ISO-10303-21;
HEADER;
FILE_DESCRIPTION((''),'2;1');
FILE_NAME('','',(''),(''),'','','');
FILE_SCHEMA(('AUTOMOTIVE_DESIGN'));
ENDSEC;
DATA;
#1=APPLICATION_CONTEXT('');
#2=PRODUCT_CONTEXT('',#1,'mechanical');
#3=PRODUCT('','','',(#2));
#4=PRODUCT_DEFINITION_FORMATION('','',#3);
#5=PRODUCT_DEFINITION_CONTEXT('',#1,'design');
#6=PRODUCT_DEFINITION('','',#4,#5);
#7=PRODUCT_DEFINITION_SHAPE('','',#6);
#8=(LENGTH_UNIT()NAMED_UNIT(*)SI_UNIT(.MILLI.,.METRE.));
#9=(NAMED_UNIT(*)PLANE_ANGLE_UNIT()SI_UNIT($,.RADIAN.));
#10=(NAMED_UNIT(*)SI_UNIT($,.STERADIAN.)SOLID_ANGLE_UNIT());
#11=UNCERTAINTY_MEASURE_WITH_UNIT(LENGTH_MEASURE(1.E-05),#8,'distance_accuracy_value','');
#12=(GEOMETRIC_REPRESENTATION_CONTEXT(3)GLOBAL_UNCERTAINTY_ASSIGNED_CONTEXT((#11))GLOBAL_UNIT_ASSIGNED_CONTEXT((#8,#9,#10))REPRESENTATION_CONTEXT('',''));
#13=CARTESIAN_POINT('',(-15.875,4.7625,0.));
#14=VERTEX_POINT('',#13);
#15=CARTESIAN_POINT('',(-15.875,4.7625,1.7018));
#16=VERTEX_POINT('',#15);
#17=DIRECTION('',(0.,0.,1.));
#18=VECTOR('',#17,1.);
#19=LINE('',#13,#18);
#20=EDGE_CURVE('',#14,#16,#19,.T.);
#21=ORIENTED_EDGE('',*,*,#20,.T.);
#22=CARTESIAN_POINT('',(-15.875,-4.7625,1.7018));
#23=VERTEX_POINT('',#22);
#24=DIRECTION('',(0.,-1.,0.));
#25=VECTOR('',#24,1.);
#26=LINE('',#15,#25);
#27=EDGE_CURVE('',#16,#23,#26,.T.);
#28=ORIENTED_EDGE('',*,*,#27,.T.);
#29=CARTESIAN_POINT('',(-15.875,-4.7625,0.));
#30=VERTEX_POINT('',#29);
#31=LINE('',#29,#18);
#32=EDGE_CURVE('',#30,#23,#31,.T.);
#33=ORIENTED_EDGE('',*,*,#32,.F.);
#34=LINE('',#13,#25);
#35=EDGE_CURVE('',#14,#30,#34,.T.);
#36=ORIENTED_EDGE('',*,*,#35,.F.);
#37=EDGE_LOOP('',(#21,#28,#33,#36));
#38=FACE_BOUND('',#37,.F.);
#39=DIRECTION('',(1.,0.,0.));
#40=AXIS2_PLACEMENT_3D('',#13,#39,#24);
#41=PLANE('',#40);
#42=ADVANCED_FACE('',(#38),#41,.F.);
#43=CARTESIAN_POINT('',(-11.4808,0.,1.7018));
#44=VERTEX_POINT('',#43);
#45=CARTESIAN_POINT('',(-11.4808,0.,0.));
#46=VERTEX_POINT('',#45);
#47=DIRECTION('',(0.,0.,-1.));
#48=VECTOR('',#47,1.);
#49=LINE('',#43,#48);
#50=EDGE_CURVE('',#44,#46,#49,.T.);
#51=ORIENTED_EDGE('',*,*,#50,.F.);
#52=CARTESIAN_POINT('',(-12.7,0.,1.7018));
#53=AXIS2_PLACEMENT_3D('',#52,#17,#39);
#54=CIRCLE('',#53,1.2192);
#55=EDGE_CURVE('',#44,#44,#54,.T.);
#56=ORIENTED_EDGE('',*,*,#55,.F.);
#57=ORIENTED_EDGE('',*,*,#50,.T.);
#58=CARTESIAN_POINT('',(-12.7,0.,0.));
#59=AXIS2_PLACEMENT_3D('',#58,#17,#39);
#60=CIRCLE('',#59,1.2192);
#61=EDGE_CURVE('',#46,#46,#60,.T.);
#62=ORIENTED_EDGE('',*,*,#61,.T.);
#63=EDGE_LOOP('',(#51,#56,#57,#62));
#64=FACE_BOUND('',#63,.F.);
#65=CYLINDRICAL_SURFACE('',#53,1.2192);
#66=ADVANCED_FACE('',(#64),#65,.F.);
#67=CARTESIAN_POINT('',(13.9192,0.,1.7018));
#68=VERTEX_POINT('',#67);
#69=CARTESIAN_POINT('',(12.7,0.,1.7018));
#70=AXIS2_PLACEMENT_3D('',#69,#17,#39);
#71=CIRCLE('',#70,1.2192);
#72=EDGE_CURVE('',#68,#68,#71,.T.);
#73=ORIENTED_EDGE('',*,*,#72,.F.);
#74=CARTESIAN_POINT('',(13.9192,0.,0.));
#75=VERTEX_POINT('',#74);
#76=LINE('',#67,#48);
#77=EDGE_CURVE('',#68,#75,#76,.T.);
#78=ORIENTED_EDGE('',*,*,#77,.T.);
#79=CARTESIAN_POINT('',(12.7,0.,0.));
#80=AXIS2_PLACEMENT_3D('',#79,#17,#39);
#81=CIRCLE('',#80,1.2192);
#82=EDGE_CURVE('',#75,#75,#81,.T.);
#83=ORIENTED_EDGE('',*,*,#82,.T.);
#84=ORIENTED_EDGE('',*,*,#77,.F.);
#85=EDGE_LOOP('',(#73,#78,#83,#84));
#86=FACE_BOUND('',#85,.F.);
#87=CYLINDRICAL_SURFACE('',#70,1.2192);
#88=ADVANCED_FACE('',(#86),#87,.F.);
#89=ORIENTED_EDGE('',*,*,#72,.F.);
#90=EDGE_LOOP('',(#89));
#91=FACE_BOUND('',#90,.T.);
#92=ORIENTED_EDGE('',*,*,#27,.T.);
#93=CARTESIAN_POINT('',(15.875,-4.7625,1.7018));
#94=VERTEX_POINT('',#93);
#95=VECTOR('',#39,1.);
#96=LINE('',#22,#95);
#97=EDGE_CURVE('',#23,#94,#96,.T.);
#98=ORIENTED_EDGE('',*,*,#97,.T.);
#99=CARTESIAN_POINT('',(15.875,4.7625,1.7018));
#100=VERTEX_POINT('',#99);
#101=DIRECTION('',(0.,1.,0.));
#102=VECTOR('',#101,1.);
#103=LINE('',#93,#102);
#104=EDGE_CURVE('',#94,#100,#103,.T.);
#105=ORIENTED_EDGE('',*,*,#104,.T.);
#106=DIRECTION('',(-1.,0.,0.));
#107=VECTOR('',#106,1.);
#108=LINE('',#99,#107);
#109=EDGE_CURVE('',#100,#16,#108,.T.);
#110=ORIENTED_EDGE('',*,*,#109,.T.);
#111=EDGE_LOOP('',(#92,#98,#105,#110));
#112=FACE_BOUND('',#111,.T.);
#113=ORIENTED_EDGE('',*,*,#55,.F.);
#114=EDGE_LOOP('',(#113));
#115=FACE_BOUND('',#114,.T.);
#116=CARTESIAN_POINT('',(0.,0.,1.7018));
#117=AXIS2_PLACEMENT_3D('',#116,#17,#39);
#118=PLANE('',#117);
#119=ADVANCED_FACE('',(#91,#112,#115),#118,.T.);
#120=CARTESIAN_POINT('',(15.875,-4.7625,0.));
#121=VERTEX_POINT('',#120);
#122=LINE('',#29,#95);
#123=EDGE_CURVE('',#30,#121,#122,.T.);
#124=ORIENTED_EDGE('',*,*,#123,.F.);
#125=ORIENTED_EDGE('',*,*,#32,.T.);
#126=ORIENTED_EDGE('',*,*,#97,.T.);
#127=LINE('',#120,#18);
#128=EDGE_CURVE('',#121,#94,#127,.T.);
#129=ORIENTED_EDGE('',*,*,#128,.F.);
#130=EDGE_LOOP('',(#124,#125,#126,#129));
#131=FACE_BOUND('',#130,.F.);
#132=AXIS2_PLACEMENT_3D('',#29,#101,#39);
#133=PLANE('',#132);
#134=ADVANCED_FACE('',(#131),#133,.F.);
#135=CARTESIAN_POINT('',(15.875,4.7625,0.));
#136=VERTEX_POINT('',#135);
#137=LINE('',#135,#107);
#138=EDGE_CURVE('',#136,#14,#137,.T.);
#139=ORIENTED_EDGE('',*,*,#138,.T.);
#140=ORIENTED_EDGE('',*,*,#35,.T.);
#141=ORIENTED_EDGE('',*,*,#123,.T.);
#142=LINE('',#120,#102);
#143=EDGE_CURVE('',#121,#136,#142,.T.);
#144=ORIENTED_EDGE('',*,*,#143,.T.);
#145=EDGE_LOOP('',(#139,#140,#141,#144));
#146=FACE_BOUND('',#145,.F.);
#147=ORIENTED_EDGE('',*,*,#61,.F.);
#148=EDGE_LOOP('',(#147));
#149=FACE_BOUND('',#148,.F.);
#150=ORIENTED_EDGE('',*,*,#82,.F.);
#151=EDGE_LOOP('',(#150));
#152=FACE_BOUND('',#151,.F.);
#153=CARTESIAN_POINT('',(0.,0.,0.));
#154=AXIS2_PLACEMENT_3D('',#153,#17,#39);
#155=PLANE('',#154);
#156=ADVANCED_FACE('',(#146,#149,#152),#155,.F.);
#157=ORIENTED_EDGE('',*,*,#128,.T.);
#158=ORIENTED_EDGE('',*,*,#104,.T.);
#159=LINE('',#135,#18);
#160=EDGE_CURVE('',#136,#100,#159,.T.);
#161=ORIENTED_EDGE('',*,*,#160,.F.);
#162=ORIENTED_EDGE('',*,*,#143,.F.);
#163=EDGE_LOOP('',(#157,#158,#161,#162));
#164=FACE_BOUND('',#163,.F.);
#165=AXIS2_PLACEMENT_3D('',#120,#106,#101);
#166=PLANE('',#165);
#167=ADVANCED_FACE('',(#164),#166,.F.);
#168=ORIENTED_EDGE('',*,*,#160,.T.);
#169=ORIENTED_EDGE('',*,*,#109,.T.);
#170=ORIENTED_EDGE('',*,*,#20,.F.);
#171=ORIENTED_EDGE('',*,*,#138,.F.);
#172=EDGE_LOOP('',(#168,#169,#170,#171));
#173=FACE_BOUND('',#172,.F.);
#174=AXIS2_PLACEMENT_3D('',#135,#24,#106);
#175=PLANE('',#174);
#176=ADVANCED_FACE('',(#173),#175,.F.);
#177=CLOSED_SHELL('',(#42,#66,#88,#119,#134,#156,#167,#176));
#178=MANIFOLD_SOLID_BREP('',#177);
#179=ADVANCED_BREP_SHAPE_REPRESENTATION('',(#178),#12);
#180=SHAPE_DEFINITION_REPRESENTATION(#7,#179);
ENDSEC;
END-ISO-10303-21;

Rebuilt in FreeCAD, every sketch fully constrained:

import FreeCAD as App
import Part
import Sketcher
from FreeCAD import Vector
Q = App.Units.Quantity

doc = App.newDocument("Part")
body = doc.addObject("PartDesign::Body", "Body")

sketch1 = body.newObject("Sketcher::SketchObject", "Sketch")
sketch1.AttachmentSupport = (doc.getObject("XY_Plane"), [""])
sketch1.MapMode = "FlatFace"
sketch1.addGeometry(Part.LineSegment(Vector(-16, 5, 0), Vector(-16, -5, 0)), False)
sketch1.addGeometry(Part.LineSegment(Vector(-16, -5, 0), Vector(16, -5, 0)), False)
sketch1.addGeometry(Part.LineSegment(Vector(16, -5, 0), Vector(16, 5, 0)), False)
sketch1.addGeometry(Part.LineSegment(Vector(16, 5, 0), Vector(-16, 5, 0)), False)
sketch1.addConstraint(Sketcher.Constraint("Coincident", 0, 2, 1, 1))
sketch1.addConstraint(Sketcher.Constraint("Coincident", 1, 2, 2, 1))
sketch1.addConstraint(Sketcher.Constraint("Coincident", 2, 2, 3, 1))
sketch1.addConstraint(Sketcher.Constraint("Coincident", 3, 2, 0, 1))
sketch1.addConstraint(Sketcher.Constraint("Vertical", 0))
sketch1.addConstraint(Sketcher.Constraint("Horizontal", 1))
sketch1.addConstraint(Sketcher.Constraint("Vertical", 2))
sketch1.addConstraint(Sketcher.Constraint("Horizontal", 3))
sketch1.addConstraint(Sketcher.Constraint("Symmetric", 0, 2, 2, 2, -1, 1))
sketch1.addConstraint(Sketcher.Constraint("DistanceX", 1, 1, 1, 2, Q("1.25 in")))
sketch1.addConstraint(Sketcher.Constraint("DistanceY", 0, 2, 0, 1, Q("0.375 in")))
pad1 = body.newObject("PartDesign::Pad", "Pad")
pad1.Profile = sketch1
pad1.Length = Q("0.067 in")

sketch2 = body.newObject("Sketcher::SketchObject", "Sketch001")
sketch2.AttachmentSupport = (doc.getObject("XY_Plane"), [""])
sketch2.MapMode = "FlatFace"
sketch2.AttachmentOffset = App.Placement(Vector(0, 0, 0.067 * 25.4), App.Rotation())
sketch2.addGeometry(Part.Circle(Vector(-12.7, 0, 0), Vector(0, 0, 1), 1.2), False)
sketch2.addGeometry(Part.Circle(Vector(12.7, 0, 0), Vector(0, 0, 1), 1.2), False)
sketch2.addConstraint(Sketcher.Constraint("Equal", 0, 1))
sketch2.addConstraint(Sketcher.Constraint("Symmetric", 0, 3, 1, 3, -1, 1))
sketch2.addConstraint(Sketcher.Constraint("PointOnObject", 0, 3, -1))
sketch2.addConstraint(Sketcher.Constraint("Diameter", 0, Q("0.096 in")))
sketch2.addConstraint(Sketcher.Constraint("DistanceX", 0, 3, 1, 3, Q("1 in")))
pocket1 = body.newObject("PartDesign::Pocket", "Pocket")
pocket1.Profile = sketch2
pocket1.Type = "ThroughAll"

doc.recompute()
